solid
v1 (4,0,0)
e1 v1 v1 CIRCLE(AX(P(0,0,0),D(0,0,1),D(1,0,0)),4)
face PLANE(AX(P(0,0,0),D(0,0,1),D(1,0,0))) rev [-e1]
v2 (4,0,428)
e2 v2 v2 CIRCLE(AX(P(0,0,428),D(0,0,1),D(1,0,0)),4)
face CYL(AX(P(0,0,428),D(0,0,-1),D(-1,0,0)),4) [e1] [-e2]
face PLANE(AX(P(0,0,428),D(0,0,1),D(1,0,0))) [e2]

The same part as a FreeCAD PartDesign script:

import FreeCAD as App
import Part
import Sketcher
Q = App.Units.Quantity

doc = App.newDocument("Part")
body = doc.addObject("PartDesign::Body", "Body")

# Sketch on XY plane
sketch1 = body.newObject("Sketcher::SketchObject", "Sketch")
sketch1.AttachmentSupport = (doc.getObject("XY_Plane"), [""])
sketch1.MapMode = "FlatFace"
sketch1.addGeometry(Part.Circle(App.Vector(0, 0, 0), App.Vector(0, 0, 1), 4), False)
sketch1.addConstraint(Sketcher.Constraint("Coincident", 0, 3, -1, 1))
sketch1.addConstraint(Sketcher.Constraint("Diameter", 0, Q("8 mm")))
pad1 = body.newObject("PartDesign::Pad", "Pad")
pad1.Profile = sketch1
pad1.Length = 428

doc.recompute()
